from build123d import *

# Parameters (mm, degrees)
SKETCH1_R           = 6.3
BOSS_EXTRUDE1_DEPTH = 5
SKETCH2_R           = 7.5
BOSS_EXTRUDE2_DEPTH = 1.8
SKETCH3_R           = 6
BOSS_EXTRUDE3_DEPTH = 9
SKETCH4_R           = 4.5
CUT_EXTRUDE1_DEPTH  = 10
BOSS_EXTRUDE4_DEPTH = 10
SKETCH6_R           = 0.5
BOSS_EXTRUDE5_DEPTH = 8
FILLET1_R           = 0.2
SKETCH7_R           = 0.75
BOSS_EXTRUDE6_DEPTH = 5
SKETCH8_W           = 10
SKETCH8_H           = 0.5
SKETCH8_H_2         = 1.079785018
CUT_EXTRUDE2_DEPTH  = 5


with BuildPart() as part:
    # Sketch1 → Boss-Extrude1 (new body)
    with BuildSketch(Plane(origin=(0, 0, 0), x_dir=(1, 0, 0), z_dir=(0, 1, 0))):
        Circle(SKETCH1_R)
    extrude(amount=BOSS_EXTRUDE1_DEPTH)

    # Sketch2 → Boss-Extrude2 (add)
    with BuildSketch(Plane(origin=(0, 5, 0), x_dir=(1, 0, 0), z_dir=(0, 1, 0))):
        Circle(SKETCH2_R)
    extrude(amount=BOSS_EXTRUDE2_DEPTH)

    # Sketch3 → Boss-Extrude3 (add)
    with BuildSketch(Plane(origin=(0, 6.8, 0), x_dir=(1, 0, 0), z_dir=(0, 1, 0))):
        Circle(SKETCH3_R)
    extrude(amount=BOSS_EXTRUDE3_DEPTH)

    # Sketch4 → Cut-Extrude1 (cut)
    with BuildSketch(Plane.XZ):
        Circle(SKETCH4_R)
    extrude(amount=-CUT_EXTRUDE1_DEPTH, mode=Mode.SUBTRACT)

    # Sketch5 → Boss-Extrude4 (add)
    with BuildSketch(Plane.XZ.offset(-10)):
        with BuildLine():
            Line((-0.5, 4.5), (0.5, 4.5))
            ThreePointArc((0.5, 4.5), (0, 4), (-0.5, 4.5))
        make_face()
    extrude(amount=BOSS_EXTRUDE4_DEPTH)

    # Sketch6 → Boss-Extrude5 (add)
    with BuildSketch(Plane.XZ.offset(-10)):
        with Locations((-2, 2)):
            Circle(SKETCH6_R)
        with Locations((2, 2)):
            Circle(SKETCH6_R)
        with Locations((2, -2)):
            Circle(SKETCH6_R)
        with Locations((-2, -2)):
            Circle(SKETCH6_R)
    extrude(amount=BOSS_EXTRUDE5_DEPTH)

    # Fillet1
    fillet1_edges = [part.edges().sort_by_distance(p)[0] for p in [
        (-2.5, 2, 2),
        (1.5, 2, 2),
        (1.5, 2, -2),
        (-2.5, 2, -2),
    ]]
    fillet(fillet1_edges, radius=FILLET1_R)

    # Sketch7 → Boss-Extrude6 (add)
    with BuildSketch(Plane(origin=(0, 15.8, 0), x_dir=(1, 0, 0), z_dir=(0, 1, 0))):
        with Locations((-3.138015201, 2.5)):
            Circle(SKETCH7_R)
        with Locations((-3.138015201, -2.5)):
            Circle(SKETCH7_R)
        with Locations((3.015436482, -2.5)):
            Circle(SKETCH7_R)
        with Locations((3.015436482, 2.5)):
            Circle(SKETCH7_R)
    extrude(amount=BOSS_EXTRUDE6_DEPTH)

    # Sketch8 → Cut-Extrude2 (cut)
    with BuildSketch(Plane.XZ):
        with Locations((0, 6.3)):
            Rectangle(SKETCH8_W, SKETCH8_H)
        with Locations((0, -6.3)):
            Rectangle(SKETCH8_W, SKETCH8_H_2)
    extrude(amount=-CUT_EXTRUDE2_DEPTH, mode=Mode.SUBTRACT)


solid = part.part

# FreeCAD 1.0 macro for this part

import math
import FreeCAD as App
import Part
import Sketcher
from FreeCAD import Vector
Q = App.Units.Quantity


def edges_at(feature, points):
    """Names of the edges that pass closest to the given points."""
    edges = feature.Shape.Edges
    near = lambda p: min(range(len(edges)), key=lambda i: edges[i].distToShape(Part.Vertex(*p))[0])
    return sorted({f"Edge{near(p) + 1}" for p in points})


def add_polygon(sketch, points):
    """Adds a closed chain of lines whose ends are joined by coincident constraints."""
    first, n = sketch.GeometryCount, len(points)
    for a, b in zip(points, points[1:] + points[:1]):
        sketch.addGeometry(Part.LineSegment(App.Vector(*a, 0), App.Vector(*b, 0)), False)
    for i in range(n):
        sketch.addConstraint(Sketcher.Constraint("Coincident", first + i, 2, first + (i + 1) % n, 1))

doc = App.newDocument("Part")
body = doc.addObject("PartDesign::Body", "Body")

sketch1 = doc.addObject("Sketcher::SketchObject", "Sketch")
body.addObject(sketch1)
sketch1.AttachmentSupport = (doc.XZ_Plane, [""])
sketch1.MapMode = "FlatFace"
sketch1.addGeometry(Part.Circle(Vector(0, 0, 0), Vector(0, 0, 1), 6.3), False)
sketch1.addConstraint([
    Sketcher.Constraint("Coincident", 0, 3, -1, 1),
    Sketcher.Constraint("Diameter", 0, Q("12.6 mm")),
])
pad1 = doc.addObject("PartDesign::Pad", "Pad")
body.addObject(pad1)
pad1.Profile = sketch1
pad1.Length = 5
pad1.Reversed = True

sketch2 = doc.addObject("Sketcher::SketchObject", "Sketch001")
body.addObject(sketch2)
sketch2.AttachmentSupport = (doc.XZ_Plane, [""])
sketch2.MapMode = "FlatFace"
sketch2.AttachmentOffset = App.Placement(Vector(0, 0, -5), App.Rotation())
sketch2.addGeometry(Part.Circle(Vector(0, 0, 0), Vector(0, 0, 1), 7.5), False)
sketch2.addConstraint([
    Sketcher.Constraint("Coincident", 0, 3, -1, 1),
    Sketcher.Constraint("Diameter", 0, Q("15 mm")),
])
pad2 = doc.addObject("PartDesign::Pad", "Pad001")
body.addObject(pad2)
pad2.Profile = sketch2
pad2.Length = 1.8
pad2.Reversed = True

sketch3 = doc.addObject("Sketcher::SketchObject", "Sketch002")
body.addObject(sketch3)
sketch3.AttachmentSupport = (doc.XZ_Plane, [""])
sketch3.MapMode = "FlatFace"
sketch3.AttachmentOffset = App.Placement(Vector(0, 0, -6.8), App.Rotation())
sketch3.addGeometry(Part.Circle(Vector(0, 0, 0), Vector(0, 0, 1), 6), False)
sketch3.addConstraint([
    Sketcher.Constraint("Coincident", 0, 3, -1, 1),
    Sketcher.Constraint("Diameter", 0, Q("12 mm")),
])
pad3 = doc.addObject("PartDesign::Pad", "Pad002")
body.addObject(pad3)
pad3.Profile = sketch3
pad3.Length = 9
pad3.Reversed = True

sketch4 = doc.addObject("Sketcher::SketchObject", "Sketch003")
body.addObject(sketch4)
sketch4.AttachmentSupport = (doc.XZ_Plane, [""])
sketch4.MapMode = "FlatFace"
sketch4.addGeometry(Part.Circle(Vector(0, 0, 0), Vector(0, 0, 1), 4.5), False)
sketch4.addConstraint([
    Sketcher.Constraint("Coincident", 0, 3, -1, 1),
    Sketcher.Constraint("Diameter", 0, Q("9 mm")),
])
pocket1 = doc.addObject("PartDesign::Pocket", "Pocket")
body.addObject(pocket1)
pocket1.Profile = sketch4
pocket1.Length = 10

sketch5 = doc.addObject("Sketcher::SketchObject", "Sketch004")
body.addObject(sketch5)
sketch5.AttachmentSupport = (doc.XZ_Plane, [""])
sketch5.MapMode = "FlatFace"
sketch5.AttachmentOffset = App.Placement(Vector(0, 0, -10), App.Rotation())
sketch5.addGeometry([
    Part.LineSegment(Vector(0.5, 4.5, 0), Vector(-0.5, 4.5, 0)),
    Part.ArcOfCircle(Part.Circle(Vector(0, 4.5, 0), Vector(0, 0, 1), 0.5), math.radians(180), math.radians(360)),
], False)
sketch5.addConstraint([
    Sketcher.Constraint("Coincident", 0, 1, 1, 2),
    Sketcher.Constraint("Coincident", 1, 1, 0, 2),
    Sketcher.Constraint("Horizontal", 0),
    Sketcher.Constraint("PointOnObject", 1, 3, -2),
    Sketcher.Constraint("Horizontal", 1, 3, 0, 1),
    Sketcher.Constraint("Radius", 1, Q("0.5 mm")),
    Sketcher.Constraint("DistanceY", -1, 1, 1, 3, Q("4.5 mm")),
])
pad4 = doc.addObject("PartDesign::Pad", "Pad003")
body.addObject(pad4)
pad4.Profile = sketch5
pad4.Length = 10

sketch6 = doc.addObject("Sketcher::SketchObject", "Sketch005")
body.addObject(sketch6)
sketch6.AttachmentSupport = (doc.XZ_Plane, [""])
sketch6.MapMode = "FlatFace"
sketch6.AttachmentOffset = App.Placement(Vector(0, 0, -10), App.Rotation())
sketch6.addGeometry([
    Part.Circle(Vector(-2, 2, 0), Vector(0, 0, 1), 0.5),
    Part.Circle(Vector(2, 2, 0), Vector(0, 0, 1), 0.5),
    Part.Circle(Vector(2, -2, 0), Vector(0, 0, 1), 0.5),
    Part.Circle(Vector(-2, -2, 0), Vector(0, 0, 1), 0.5),
], False)
sketch6.addConstraint([
    Sketcher.Constraint("Equal", 0, 1),
    Sketcher.Constraint("Equal", 1, 2),
    Sketcher.Constraint("Equal", 2, 3),
    Sketcher.Constraint("Symmetric", 0, 3, 2, 3, -1, 1),
    Sketcher.Constraint("Symmetric", 1, 3, 3, 3, -1, 1),
    Sketcher.Constraint("Symmetric", 0, 3, 1, 3, -2),
    Sketcher.Constraint("Diameter", 0, Q("1 mm")),
    Sketcher.Constraint("DistanceX", 0, 3, -1, 1, Q("2 mm")),
    Sketcher.Constraint("DistanceY", -1, 1, 0, 3, Q("2 mm")),
])
pad5 = doc.addObject("PartDesign::Pad", "Pad004")
body.addObject(pad5)
pad5.Profile = sketch6
pad5.Length = 8
doc.recompute()

fillet = doc.addObject("PartDesign::Fillet", "Fillet")
body.addObject(fillet)
fillet.Base = (pad5, edges_at(pad5, [
    (-2.5, 2, 2),
    (1.5, 2, 2),
    (1.5, 2, -2),
    (-2.5, 2, -2),
]))
fillet.Radius = 0.2

sketch7 = doc.addObject("Sketcher::SketchObject", "Sketch006")
body.addObject(sketch7)
sketch7.AttachmentSupport = (doc.XZ_Plane, [""])
sketch7.MapMode = "FlatFace"
sketch7.AttachmentOffset = App.Placement(Vector(0, 0, -15.8), App.Rotation())
sketch7.addGeometry([
    Part.Circle(Vector(-3.138015, -2.5, 0), Vector(0, 0, 1), 0.75),
    Part.Circle(Vector(-3.138015, 2.5, 0), Vector(0, 0, 1), 0.75),
    Part.Circle(Vector(3.015436, 2.5, 0), Vector(0, 0, 1), 0.75),
    Part.Circle(Vector(3.015436, -2.5, 0), Vector(0, 0, 1), 0.75),
], False)
sketch7.addConstraint([
    Sketcher.Constraint("Equal", 0, 1),
    Sketcher.Constraint("Equal", 1, 2),
    Sketcher.Constraint("Equal", 2, 3),
    Sketcher.Constraint("Symmetric", 0, 3, 1, 3, -1),
    Sketcher.Constraint("Symmetric", 2, 3, 3, 3, -1),
    Sketcher.Constraint("Horizontal", 1, 3, 2, 3),
    Sketcher.Constraint("Diameter", 0, Q("1.5 mm")),
    Sketcher.Constraint("DistanceY", 0, 3, 1, 3, Q("5 mm")),
    Sketcher.Constraint("DistanceX", 1, 3, 2, 3, Q("6.153452 mm")),
    Sketcher.Constraint("DistanceX", 0, 3, -1, 1, Q("3.138015 mm")),
])
pad6 = doc.addObject("PartDesign::Pad", "Pad005")
body.addObject(pad6)
pad6.Profile = sketch7
pad6.Length = 5
pad6.Reversed = True

sketch8 = doc.addObject("Sketcher::SketchObject", "Sketch007")
body.addObject(sketch8)
sketch8.AttachmentSupport = (doc.XZ_Plane, [""])
sketch8.MapMode = "FlatFace"
add_polygon(sketch8, [(-5, 6.55), (-5, 6.05), (5, 6.05), (5, 6.55)])
add_polygon(sketch8, [(-5, -5.760107), (-5, -6.839893), (5, -6.839893), (5, -5.760107)])
sketch8.addConstraint([
    Sketcher.Constraint("Vertical", 0),
    Sketcher.Constraint("Horizontal", 1),
    Sketcher.Constraint("Vertical", 2),
    Sketcher.Constraint("Horizontal", 3),
    Sketcher.Constraint("Vertical", 4),
    Sketcher.Constraint("Horizontal", 5),
    Sketcher.Constraint("Vertical", 6),
    Sketcher.Constraint("Horizontal", 7),
    Sketcher.Constraint("Vertical", 3, 2, 4, 2),
    Sketcher.Constraint("Vertical", 2, 2, 5, 2),
    Sketcher.Constraint("DistanceX", 1, 1, 1, 2, Q("10 mm")),
    Sketcher.Constraint("DistanceY", 0, 2, 0, 1, Q("0.5 mm")),
    Sketcher.Constraint("DistanceX", 0, 2, -1, 1, Q("5 mm")),
    Sketcher.Constraint("DistanceY", -1, 1, 0, 2, Q("6.05 mm")),
    Sketcher.Constraint("DistanceY", 4, 2, 4, 1, Q("1.079785 mm")),
    Sketcher.Constraint("DistanceY", 4, 2, -1, 1, Q("6.839893 mm")),
])
pocket2 = doc.addObject("PartDesign::Pocket", "Pocket001")
body.addObject(pocket2)
pocket2.Profile = sketch8
pocket2.Length = 5

doc.recompute()
